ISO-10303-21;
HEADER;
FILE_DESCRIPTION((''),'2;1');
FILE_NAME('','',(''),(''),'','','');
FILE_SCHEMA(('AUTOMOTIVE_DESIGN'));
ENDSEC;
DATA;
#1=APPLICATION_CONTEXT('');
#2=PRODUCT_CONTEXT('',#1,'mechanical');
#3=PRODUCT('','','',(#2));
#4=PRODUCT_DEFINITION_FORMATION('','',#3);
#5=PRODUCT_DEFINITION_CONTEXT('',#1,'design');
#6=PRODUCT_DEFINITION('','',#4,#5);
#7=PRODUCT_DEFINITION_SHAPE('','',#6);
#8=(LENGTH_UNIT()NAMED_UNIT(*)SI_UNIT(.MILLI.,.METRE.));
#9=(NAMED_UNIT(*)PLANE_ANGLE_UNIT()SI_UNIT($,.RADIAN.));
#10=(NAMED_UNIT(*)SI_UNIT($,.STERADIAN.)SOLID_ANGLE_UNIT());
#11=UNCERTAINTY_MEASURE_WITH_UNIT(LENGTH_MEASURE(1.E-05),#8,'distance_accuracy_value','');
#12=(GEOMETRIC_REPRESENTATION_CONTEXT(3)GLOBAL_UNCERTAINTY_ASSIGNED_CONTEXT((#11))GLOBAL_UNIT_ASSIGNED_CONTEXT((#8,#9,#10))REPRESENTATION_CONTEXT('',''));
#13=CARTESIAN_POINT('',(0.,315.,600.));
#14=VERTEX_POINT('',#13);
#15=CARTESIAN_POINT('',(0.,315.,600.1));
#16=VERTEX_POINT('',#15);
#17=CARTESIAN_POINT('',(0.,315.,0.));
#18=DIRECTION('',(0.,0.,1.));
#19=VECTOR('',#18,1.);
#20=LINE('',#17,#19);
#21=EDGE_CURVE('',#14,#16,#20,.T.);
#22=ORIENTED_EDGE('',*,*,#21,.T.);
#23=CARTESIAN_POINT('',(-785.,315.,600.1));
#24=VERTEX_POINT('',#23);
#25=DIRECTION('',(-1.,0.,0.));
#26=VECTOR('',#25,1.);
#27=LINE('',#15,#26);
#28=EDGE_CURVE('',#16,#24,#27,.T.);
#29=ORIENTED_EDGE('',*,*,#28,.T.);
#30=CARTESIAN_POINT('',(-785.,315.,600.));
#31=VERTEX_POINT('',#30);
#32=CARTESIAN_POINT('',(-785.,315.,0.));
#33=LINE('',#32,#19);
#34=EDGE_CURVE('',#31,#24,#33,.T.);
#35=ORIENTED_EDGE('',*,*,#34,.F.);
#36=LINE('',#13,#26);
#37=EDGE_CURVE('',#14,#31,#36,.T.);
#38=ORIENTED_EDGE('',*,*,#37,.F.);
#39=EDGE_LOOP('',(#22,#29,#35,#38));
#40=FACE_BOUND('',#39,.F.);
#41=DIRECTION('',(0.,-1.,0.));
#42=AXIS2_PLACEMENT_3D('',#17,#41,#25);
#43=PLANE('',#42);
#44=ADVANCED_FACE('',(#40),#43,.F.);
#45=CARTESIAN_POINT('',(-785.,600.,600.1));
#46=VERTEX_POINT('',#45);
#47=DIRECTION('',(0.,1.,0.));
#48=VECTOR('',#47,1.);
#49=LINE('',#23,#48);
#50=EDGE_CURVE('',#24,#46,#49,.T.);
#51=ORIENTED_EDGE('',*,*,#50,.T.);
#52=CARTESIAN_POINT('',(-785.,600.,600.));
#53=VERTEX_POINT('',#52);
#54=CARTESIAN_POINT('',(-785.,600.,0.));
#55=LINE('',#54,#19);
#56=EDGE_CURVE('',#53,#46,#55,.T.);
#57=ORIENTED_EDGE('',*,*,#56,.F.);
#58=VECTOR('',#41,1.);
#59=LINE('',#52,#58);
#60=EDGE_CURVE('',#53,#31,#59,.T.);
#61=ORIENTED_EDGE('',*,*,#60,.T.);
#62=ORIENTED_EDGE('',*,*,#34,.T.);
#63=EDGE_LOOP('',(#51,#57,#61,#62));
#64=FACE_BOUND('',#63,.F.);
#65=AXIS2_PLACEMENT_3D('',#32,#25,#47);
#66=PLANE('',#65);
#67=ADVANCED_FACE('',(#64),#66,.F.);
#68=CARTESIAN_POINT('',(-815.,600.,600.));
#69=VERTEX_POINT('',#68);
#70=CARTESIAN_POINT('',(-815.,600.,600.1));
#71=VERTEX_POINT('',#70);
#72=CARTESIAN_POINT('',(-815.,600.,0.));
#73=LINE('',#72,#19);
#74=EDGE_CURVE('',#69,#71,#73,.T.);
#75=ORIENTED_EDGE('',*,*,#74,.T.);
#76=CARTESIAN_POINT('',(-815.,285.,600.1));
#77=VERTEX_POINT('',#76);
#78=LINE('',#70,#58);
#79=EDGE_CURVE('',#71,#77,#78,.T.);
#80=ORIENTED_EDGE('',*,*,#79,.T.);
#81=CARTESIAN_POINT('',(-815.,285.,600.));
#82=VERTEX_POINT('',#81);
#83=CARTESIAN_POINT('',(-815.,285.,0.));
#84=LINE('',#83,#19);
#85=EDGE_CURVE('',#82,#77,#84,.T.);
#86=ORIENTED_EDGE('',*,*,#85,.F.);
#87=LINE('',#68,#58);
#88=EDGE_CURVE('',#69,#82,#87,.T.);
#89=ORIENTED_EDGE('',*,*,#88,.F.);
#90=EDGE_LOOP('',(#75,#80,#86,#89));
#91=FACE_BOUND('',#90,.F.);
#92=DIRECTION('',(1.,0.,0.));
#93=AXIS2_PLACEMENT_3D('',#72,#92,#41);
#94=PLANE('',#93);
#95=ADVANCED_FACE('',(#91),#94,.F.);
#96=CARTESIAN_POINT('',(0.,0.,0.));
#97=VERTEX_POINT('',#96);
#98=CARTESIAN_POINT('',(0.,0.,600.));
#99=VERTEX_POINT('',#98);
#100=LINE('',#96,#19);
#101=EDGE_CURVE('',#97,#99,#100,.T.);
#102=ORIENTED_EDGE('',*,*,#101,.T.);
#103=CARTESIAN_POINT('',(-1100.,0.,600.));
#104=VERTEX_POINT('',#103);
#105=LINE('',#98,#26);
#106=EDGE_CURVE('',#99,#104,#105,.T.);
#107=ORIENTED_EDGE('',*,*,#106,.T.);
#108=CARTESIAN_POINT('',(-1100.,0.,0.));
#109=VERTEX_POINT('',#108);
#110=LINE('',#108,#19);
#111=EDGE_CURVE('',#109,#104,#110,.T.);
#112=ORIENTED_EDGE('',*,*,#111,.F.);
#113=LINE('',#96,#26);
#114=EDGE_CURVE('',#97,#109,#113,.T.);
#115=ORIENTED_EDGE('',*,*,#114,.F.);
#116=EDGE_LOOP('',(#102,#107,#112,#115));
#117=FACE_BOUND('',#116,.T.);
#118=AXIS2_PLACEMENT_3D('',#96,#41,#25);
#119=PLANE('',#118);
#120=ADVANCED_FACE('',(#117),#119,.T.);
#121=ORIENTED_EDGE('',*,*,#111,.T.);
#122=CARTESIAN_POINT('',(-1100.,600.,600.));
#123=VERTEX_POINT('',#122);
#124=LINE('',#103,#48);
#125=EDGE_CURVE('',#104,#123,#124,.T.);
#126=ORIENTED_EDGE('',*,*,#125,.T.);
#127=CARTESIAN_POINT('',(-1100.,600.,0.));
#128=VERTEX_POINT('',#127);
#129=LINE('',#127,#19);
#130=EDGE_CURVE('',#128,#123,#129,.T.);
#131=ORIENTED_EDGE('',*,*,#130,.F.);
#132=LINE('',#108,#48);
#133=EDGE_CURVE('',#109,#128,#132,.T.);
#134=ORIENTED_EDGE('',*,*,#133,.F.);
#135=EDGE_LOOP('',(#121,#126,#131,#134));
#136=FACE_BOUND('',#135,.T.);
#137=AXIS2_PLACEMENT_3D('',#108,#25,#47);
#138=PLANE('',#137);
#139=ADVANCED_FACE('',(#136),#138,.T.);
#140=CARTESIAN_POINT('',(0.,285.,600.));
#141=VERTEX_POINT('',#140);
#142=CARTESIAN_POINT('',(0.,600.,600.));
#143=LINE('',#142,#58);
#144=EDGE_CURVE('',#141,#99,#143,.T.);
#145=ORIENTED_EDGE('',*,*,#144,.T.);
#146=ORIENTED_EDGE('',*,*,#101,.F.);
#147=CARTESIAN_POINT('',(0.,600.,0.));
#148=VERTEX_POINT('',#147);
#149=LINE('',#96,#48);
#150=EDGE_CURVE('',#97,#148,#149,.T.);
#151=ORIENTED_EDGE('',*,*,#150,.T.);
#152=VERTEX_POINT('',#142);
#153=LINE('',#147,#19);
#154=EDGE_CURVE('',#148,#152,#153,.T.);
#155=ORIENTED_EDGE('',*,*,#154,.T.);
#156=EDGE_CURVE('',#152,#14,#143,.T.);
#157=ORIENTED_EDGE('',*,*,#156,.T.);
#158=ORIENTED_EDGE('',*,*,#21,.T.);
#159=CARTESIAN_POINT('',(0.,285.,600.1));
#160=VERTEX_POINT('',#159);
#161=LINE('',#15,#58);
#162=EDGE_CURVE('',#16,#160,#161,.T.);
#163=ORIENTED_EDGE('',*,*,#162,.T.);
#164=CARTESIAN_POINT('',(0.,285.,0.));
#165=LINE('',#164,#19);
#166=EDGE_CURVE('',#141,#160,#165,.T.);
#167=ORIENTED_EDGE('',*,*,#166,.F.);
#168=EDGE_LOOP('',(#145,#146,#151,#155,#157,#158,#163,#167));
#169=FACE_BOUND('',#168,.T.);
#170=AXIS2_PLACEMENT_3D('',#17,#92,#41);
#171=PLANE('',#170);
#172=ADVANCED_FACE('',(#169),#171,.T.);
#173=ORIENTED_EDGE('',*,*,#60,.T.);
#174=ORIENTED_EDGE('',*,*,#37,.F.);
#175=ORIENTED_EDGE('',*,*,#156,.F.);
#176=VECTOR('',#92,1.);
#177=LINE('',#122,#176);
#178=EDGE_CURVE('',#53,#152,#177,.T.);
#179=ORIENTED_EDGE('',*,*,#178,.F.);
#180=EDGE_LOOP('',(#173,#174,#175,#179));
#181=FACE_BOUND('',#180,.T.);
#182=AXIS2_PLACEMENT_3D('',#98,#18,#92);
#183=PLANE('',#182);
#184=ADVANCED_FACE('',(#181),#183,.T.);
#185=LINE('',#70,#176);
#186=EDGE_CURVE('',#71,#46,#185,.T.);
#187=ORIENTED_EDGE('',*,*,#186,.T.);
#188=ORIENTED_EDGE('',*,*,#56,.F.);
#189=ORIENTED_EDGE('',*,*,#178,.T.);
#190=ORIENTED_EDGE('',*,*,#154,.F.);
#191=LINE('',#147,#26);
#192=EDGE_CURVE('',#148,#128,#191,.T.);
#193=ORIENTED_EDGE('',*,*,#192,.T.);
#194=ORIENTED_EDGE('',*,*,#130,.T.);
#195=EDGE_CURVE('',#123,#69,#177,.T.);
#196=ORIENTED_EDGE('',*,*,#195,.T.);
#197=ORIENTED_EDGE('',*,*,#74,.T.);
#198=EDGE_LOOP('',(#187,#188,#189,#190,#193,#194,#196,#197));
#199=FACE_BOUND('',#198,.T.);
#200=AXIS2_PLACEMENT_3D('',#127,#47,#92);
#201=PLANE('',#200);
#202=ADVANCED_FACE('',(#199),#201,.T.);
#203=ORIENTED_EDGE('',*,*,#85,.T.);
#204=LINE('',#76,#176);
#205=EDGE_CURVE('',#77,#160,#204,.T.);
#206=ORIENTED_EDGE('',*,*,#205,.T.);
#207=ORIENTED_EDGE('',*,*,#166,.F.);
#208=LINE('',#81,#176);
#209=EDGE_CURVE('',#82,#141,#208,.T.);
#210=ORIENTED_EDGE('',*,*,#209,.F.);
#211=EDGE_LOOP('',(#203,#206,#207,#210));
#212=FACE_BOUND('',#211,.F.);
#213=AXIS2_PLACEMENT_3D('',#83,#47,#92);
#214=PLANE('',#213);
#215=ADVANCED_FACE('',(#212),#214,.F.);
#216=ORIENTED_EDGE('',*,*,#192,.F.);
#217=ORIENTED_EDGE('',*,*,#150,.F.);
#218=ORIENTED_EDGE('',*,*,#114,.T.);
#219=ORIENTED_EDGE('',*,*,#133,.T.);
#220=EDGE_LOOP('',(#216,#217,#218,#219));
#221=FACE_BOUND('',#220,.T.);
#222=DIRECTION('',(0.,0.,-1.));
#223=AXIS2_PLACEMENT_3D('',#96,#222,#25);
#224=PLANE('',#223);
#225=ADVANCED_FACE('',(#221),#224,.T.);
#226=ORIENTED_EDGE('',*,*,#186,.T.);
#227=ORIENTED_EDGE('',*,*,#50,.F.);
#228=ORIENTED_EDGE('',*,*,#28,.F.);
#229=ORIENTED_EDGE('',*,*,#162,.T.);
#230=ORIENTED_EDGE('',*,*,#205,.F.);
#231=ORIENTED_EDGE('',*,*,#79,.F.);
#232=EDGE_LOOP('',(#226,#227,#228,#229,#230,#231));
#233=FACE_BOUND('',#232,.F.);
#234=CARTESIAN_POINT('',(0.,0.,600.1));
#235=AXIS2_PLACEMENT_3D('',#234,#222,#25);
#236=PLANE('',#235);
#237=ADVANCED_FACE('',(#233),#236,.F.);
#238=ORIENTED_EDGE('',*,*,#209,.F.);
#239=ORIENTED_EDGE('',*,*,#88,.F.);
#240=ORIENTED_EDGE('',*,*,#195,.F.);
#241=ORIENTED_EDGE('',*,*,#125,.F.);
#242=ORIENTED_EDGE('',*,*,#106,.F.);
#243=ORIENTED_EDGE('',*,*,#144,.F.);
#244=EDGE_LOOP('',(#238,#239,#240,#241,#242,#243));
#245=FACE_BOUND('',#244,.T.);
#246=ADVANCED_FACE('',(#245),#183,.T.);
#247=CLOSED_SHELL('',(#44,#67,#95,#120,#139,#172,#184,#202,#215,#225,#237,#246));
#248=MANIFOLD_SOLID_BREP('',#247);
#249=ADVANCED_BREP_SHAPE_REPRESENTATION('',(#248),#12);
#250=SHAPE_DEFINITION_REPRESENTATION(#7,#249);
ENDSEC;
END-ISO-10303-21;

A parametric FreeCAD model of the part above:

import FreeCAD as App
import Part
import Sketcher

V = App.Vector

doc = App.newDocument("Part")
body = doc.addObject("PartDesign::Body", "Body")
body.AllowCompound = True

sketch1 = doc.addObject("Sketcher::SketchObject", "Sketch")
body.addObject(sketch1)
sketch1.AttachmentSupport = (doc.XY_Plane, [""])
sketch1.MapMode = "FlatFace"
sketch1.addGeometry([
    Part.LineSegment(V(-1100, 0, 0), V(0, 0, 0)),
    Part.LineSegment(V(0, 0, 0), V(0, 285, 0)),
    Part.LineSegment(V(0, 285, 0), V(-815, 285, 0)),
    Part.LineSegment(V(-815, 285, 0), V(-815, 600, 0)),
    Part.LineSegment(V(-815, 600, 0), V(-1100, 600, 0)),
    Part.LineSegment(V(-1100, 600, 0), V(-1100, 0, 0)),
    Part.LineSegment(V(-785, 315, 0), V(0, 315, 0)),
    Part.LineSegment(V(0, 315, 0), V(0, 600, 0)),
    Part.LineSegment(V(0, 600, 0), V(-785, 600, 0)),
    Part.LineSegment(V(-785, 600, 0), V(-785, 315, 0)),
], False)
sketch1.addConstraint([
    Sketcher.Constraint("Coincident", 0, 2, 1, 1),
    Sketcher.Constraint("Coincident", 1, 2, 2, 1),
    Sketcher.Constraint("Coincident", 2, 2, 3, 1),
    Sketcher.Constraint("Coincident", 3, 2, 4, 1),
    Sketcher.Constraint("Coincident", 4, 2, 5, 1),
    Sketcher.Constraint("Coincident", 5, 2, 0, 1),
    Sketcher.Constraint("Coincident", 6, 2, 7, 1),
    Sketcher.Constraint("Coincident", 7, 2, 8, 1),
    Sketcher.Constraint("Coincident", 8, 2, 9, 1),
    Sketcher.Constraint("Coincident", 9, 2, 6, 1),
    Sketcher.Constraint("Horizontal", 0),
    Sketcher.Constraint("Vertical", 1),
    Sketcher.Constraint("Horizontal", 2),
    Sketcher.Constraint("Vertical", 3),
    Sketcher.Constraint("Horizontal", 4),
    Sketcher.Constraint("Vertical", 5),
    Sketcher.Constraint("Horizontal", 6),
    Sketcher.Constraint("Vertical", 7),
    Sketcher.Constraint("Horizontal", 8),
    Sketcher.Constraint("Vertical", 9),
    Sketcher.Constraint("Coincident", 0, 2, -1, 1),
    Sketcher.Constraint("PointOnObject", 6, 2, -2),
    Sketcher.Constraint("Horizontal", 4, 2, 7, 2),
    Sketcher.Constraint("Equal", 4, 1),
    Sketcher.Constraint("Equal", 1, 7),
    Sketcher.Constraint("DistanceX", 0, 1, 0, 2, 1100.0),
    Sketcher.Constraint("DistanceX", 6, 1, 6, 2, 785.0),
    Sketcher.Constraint("DistanceY", 5, 2, 5, 1, 600.0),
    Sketcher.Constraint("DistanceY", 1, 2, 6, 2, 30.0),
])
pad1 = doc.addObject("PartDesign::Pad", "Pad")
body.addObject(pad1)
pad1.Profile = sketch1
pad1.Length = 600

sketch2 = doc.addObject("Sketcher::SketchObject", "Sketch001")
body.addObject(sketch2)
sketch2.AttachmentSupport = (doc.XY_Plane, [""])
sketch2.MapMode = "FlatFace"
sketch2.addGeometry([
    Part.LineSegment(V(0, 285, 0), V(-815, 285, 0)),
    Part.LineSegment(V(-815, 285, 0), V(-815, 600, 0)),
    Part.LineSegment(V(-815, 600, 0), V(-785, 600, 0)),
    Part.LineSegment(V(-785, 600, 0), V(-785, 315, 0)),
    Part.LineSegment(V(-785, 315, 0), V(0, 315, 0)),
    Part.LineSegment(V(0, 315, 0), V(0, 285, 0)),
], False)
sketch2.addConstraint([
    Sketcher.Constraint("Coincident", 0, 2, 1, 1),
    Sketcher.Constraint("Coincident", 1, 2, 2, 1),
    Sketcher.Constraint("Coincident", 2, 2, 3, 1),
    Sketcher.Constraint("Coincident", 3, 2, 4, 1),
    Sketcher.Constraint("Coincident", 4, 2, 5, 1),
    Sketcher.Constraint("Coincident", 5, 2, 0, 1),
    Sketcher.Constraint("Horizontal", 0),
    Sketcher.Constraint("Vertical", 1),
    Sketcher.Constraint("Horizontal", 2),
    Sketcher.Constraint("Vertical", 3),
    Sketcher.Constraint("Horizontal", 4),
    Sketcher.Constraint("Vertical", 5),
    Sketcher.Constraint("PointOnObject", 4, 2, -2),
    Sketcher.Constraint("Equal", 2, 5),
    Sketcher.Constraint("DistanceX", 0, 2, 0, 1, 815.0),
    Sketcher.Constraint("DistanceX", 2, 1, 2, 2, 30.0),
    Sketcher.Constraint("DistanceY", 1, 1, 1, 2, 315.0),
    Sketcher.Constraint("DistanceY", -1, 1, 0, 2, 285.0),
])
pad2 = doc.addObject("PartDesign::Pad", "Pad001")
body.addObject(pad2)
pad2.Profile = sketch2
pad2.Length = 600.1

doc.recompute()
